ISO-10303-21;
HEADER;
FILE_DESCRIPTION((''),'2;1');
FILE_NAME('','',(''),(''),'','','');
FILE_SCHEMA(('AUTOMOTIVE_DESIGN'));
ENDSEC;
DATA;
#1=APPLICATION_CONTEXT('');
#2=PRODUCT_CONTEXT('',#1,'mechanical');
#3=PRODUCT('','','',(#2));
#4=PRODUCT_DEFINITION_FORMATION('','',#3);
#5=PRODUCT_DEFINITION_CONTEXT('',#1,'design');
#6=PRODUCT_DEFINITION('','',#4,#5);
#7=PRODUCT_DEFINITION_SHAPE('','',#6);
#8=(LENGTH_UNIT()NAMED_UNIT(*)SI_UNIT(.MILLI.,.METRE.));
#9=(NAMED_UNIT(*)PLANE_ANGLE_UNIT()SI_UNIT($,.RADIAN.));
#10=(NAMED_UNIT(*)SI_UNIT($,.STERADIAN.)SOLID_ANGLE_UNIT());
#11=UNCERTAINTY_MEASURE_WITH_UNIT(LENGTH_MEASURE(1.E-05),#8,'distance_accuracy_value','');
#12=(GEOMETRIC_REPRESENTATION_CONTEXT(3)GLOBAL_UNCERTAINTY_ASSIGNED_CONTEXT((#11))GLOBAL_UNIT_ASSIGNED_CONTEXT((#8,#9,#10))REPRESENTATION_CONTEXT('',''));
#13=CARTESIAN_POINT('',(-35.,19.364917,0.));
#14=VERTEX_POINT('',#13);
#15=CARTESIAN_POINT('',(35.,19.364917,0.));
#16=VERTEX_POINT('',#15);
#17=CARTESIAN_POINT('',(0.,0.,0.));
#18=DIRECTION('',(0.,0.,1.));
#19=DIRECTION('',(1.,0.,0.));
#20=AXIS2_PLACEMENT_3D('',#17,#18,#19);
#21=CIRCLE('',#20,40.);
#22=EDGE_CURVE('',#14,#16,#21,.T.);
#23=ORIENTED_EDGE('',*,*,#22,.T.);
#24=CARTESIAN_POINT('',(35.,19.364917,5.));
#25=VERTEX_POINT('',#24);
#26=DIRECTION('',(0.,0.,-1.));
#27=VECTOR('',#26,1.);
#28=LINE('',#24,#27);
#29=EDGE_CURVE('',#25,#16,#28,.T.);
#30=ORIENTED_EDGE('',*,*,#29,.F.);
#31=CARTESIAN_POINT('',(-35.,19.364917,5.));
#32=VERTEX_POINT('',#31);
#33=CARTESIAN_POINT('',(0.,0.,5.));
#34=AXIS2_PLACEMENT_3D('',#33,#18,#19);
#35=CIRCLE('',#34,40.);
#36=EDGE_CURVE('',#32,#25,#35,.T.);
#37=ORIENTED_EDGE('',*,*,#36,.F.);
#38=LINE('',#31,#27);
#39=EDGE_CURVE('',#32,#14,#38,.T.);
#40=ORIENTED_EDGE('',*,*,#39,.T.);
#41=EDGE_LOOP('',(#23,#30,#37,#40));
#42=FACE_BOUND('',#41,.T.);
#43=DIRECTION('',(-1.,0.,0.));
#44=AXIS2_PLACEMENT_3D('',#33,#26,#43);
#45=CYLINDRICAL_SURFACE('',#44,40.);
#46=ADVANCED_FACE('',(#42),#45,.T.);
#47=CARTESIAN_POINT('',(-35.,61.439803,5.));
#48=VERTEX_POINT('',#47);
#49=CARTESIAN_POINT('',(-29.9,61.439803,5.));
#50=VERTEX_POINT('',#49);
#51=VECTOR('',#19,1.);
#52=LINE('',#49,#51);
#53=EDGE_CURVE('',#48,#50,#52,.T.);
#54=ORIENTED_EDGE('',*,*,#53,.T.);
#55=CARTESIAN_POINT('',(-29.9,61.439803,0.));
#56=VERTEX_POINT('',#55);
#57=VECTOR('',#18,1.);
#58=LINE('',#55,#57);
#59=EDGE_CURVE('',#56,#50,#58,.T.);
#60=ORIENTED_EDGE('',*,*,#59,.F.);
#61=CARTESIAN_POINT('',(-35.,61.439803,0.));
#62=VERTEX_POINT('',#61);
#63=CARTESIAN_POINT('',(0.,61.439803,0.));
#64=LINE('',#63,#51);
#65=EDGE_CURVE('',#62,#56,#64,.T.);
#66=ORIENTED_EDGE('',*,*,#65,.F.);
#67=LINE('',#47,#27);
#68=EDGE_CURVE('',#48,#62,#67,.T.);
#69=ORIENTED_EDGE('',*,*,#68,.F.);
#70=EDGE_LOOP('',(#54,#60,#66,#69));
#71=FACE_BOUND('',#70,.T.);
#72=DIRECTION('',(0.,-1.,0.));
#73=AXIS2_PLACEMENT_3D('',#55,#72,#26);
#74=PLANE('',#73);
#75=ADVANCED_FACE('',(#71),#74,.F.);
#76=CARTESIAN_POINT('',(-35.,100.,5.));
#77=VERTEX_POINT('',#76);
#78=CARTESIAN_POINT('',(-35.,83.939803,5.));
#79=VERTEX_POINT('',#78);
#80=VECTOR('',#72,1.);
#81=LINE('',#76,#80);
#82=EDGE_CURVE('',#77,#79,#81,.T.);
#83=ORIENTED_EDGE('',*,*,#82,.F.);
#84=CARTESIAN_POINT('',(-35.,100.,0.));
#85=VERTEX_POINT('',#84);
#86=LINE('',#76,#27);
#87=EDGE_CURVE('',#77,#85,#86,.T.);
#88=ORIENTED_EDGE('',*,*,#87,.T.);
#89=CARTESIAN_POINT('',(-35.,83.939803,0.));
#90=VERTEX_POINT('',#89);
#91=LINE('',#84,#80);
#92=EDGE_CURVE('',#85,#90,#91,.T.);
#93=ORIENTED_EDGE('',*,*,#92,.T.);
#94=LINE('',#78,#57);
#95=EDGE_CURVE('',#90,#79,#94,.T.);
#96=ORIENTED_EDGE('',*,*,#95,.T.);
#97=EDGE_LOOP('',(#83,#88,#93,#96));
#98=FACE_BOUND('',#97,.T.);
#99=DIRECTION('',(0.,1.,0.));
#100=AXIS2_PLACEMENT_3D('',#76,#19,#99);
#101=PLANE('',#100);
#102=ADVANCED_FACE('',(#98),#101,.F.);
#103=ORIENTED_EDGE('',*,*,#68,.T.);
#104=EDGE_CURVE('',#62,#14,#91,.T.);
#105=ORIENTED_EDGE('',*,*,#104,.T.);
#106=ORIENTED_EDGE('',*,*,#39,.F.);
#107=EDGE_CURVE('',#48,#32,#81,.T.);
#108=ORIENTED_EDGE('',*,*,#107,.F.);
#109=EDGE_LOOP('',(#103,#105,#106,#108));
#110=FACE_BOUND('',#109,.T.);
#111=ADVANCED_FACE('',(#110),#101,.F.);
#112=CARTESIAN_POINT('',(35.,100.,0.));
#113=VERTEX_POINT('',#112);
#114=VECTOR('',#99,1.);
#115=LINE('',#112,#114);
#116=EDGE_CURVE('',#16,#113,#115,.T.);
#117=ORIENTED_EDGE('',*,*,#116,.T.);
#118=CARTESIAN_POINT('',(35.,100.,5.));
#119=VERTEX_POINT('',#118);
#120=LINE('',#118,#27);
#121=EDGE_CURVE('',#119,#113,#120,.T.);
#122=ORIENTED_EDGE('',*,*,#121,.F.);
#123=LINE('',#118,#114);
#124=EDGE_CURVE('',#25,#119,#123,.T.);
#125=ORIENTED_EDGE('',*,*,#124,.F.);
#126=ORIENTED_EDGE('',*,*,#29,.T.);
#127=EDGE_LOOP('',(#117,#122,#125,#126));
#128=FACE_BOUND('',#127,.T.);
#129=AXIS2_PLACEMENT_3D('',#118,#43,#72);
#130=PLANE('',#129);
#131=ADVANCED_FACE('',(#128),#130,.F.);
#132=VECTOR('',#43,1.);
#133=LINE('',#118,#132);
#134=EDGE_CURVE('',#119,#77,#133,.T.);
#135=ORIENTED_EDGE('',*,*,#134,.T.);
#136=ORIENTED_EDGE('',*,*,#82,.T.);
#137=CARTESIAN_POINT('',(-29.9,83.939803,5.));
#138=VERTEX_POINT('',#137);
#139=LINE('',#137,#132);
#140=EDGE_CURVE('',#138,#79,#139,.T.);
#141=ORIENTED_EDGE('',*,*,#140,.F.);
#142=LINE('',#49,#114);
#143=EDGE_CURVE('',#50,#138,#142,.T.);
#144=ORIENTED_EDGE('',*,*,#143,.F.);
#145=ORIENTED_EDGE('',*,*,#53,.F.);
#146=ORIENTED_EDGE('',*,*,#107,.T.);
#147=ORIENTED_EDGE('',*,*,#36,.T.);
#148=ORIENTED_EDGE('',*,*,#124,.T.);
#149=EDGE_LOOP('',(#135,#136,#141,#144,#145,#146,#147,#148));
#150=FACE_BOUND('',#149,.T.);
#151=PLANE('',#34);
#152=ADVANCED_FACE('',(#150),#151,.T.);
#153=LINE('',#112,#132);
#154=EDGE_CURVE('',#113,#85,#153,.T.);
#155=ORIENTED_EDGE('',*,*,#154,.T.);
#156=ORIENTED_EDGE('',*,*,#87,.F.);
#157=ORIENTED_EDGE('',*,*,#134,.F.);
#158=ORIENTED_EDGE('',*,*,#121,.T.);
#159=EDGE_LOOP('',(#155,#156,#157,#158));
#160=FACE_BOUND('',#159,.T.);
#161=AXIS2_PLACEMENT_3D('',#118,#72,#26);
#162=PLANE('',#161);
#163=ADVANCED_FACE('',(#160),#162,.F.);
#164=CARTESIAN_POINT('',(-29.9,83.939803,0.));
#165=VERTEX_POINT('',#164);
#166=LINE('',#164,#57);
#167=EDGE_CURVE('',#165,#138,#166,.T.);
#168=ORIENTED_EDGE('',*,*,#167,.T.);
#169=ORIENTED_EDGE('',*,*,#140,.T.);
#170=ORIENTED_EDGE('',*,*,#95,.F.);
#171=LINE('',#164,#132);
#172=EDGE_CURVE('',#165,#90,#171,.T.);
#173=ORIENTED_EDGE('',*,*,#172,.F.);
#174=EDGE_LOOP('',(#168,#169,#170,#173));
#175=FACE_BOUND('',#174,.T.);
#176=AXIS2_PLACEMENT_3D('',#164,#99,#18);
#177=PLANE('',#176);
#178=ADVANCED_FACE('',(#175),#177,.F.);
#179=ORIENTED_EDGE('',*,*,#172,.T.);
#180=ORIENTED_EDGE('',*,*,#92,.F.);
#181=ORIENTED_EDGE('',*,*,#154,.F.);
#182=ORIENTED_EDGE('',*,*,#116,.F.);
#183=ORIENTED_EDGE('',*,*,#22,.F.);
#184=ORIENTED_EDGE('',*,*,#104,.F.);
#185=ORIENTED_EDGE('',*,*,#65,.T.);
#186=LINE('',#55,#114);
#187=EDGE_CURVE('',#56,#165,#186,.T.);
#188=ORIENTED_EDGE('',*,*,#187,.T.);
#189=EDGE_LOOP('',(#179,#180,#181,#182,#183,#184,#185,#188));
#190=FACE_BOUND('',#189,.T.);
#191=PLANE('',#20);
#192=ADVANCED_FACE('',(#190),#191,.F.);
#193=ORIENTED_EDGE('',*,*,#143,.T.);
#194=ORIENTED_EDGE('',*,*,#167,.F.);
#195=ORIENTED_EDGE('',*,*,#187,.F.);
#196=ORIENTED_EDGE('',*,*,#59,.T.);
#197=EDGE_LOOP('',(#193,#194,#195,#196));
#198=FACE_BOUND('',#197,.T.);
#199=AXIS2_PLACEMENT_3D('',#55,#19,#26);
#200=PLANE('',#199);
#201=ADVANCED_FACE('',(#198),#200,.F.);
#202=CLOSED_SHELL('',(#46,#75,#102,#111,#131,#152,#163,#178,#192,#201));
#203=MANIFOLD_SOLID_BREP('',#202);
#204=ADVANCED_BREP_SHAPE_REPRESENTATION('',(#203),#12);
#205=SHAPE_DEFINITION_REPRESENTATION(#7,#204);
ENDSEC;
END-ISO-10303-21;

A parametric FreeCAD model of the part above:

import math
import FreeCAD as App
import Part
import Sketcher

V = App.Vector
Q = App.Units.Quantity

doc = App.newDocument("Part")
body = doc.addObject("PartDesign::Body", "Body")

# Sketch on XY plane
sketch1 = body.newObject("Sketcher::SketchObject", "Sketch")
sketch1.AttachmentSupport = (doc.getObject("XY_Plane"), [""])
sketch1.MapMode = "FlatFace"
sketch1.addGeometry(Part.LineSegment(V(35, 100, 0), V(-35, 100, 0)), False)
sketch1.addGeometry(Part.LineSegment(V(-35, 100, 0), V(-35, 19, 0)), False)
sketch1.addGeometry(Part.ArcOfCircle(Part.Circle(V(0, 0, 0), V(0, 0, 1), 40), math.radians(151), math.radians(389)), False)
sketch1.addGeometry(Part.LineSegment(V(35, 19, 0), V(35, 100, 0)), False)
sketch1.addConstraint(Sketcher.Constraint("Coincident", 0, 2, 1, 1))
sketch1.addConstraint(Sketcher.Constraint("Coincident", 1, 2, 2, 1))
sketch1.addConstraint(Sketcher.Constraint("Coincident", 2, 2, 3, 1))
sketch1.addConstraint(Sketcher.Constraint("Coincident", 3, 2, 0, 1))
sketch1.addConstraint(Sketcher.Constraint("Horizontal", 0))
sketch1.addConstraint(Sketcher.Constraint("Vertical", 1))
sketch1.addConstraint(Sketcher.Constraint("Vertical", 3))
sketch1.addConstraint(Sketcher.Constraint("Coincident", 2, 3, -1, 1))
sketch1.addConstraint(Sketcher.Constraint("Horizontal", 1, 2, 2, 2))
sketch1.addConstraint(Sketcher.Constraint("Radius", 2, Q("40 mm")))
sketch1.addConstraint(Sketcher.Constraint("DistanceX", 0, 2, 0, 1, Q("70 mm")))
sketch1.addConstraint(Sketcher.Constraint("DistanceY", -1, 1, 0, 2, Q("100 mm")))
pad1 = body.newObject("PartDesign::Pad", "Pad")
pad1.Profile = sketch1
pad1.Length = 5

# Sketch on XY plane
sketch2 = body.newObject("Sketcher::SketchObject", "Sketch001")
sketch2.AttachmentSupport = (doc.getObject("XY_Plane"), [""])
sketch2.MapMode = "FlatFace"
sketch2.AttachmentOffset = App.Placement(V(0, 0, 5), App.Rotation())
sketch2.addGeometry(Part.LineSegment(V(-42, 84, 0), V(-42, 61, 0)), False)
sketch2.addGeometry(Part.LineSegment(V(-42, 61, 0), V(-30, 61, 0)), False)
sketch2.addGeometry(Part.LineSegment(V(-30, 61, 0), V(-30, 84, 0)), False)
sketch2.addGeometry(Part.LineSegment(V(-30, 84, 0), V(-42, 84, 0)), False)
sketch2.addConstraint(Sketcher.Constraint("Coincident", 0, 2, 1, 1))
sketch2.addConstraint(Sketcher.Constraint("Coincident", 1, 2, 2, 1))
sketch2.addConstraint(Sketcher.Constraint("Coincident", 2, 2, 3, 1))
sketch2.addConstraint(Sketcher.Constraint("Coincident", 3, 2, 0, 1))
sketch2.addConstraint(Sketcher.Constraint("Vertical", 0))
sketch2.addConstraint(Sketcher.Constraint("Horizontal", 1))
sketch2.addConstraint(Sketcher.Constraint("Vertical", 2))
sketch2.addConstraint(Sketcher.Constraint("Horizontal", 3))
sketch2.addConstraint(Sketcher.Constraint("DistanceX", 1, 1, 1, 2, Q("12.2 mm")))
sketch2.addConstraint(Sketcher.Constraint("DistanceY", 0, 2, 0, 1, Q("22.5 mm")))
sketch2.addConstraint(Sketcher.Constraint("DistanceX", 0, 2, -1, 1, Q("42.1 mm")))
sketch2.addConstraint(Sketcher.Constraint("DistanceY", -1, 1, 0, 2, Q("61.439803 mm")))
pocket1 = body.newObject("PartDesign::Pocket", "Pocket")
pocket1.Profile = sketch2
pocket1.Type = "ThroughAll"

doc.recompute()
